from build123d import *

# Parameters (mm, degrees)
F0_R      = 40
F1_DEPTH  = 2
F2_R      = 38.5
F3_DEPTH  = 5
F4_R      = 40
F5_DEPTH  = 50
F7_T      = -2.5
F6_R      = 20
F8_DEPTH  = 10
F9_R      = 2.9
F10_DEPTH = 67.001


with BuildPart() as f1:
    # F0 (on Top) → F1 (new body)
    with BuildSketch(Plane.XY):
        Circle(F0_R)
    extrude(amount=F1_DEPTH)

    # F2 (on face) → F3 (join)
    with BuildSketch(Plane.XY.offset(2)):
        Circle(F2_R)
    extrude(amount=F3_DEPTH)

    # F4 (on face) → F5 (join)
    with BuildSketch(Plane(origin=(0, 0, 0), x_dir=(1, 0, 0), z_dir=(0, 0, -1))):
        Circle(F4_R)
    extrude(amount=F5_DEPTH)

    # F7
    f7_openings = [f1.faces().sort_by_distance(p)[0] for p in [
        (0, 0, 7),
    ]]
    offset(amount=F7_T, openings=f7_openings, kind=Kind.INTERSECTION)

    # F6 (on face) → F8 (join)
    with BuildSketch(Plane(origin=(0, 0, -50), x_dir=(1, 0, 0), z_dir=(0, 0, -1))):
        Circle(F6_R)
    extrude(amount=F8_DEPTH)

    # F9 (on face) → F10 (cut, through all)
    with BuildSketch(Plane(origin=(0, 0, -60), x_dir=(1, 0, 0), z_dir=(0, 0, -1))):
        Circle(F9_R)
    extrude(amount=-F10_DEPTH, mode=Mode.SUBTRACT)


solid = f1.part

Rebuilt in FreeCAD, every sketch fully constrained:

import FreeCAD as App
import Part
import Sketcher

V = App.Vector


def faces_at(feature, points):
    """Names of the faces that lie closest to the given points."""
    faces = feature.Shape.Faces
    near = lambda p: min(range(len(faces)), key=lambda i: faces[i].distToShape(Part.Vertex(*p))[0])
    return sorted({f"Face{near(p) + 1}" for p in points})

doc = App.newDocument("Part")
body = doc.addObject("PartDesign::Body", "Body")

# Sketch on XY plane
sketch1 = doc.addObject("Sketcher::SketchObject", "Sketch")
body.addObject(sketch1)
sketch1.AttachmentSupport = (doc.XY_Plane, [""])
sketch1.MapMode = "FlatFace"
sketch1.addGeometry(Part.Circle(V(0, 0, 0), V(0, 0, 1), 40), False)
sketch1.addConstraint([
    Sketcher.Constraint("Coincident", 0, 3, -1, 1),
    Sketcher.Constraint("Diameter", 0, 80.0),
])
pad1 = doc.addObject("PartDesign::Pad", "Pad")
body.addObject(pad1)
pad1.Profile = sketch1
pad1.Length = 2

# Sketch on XY plane
sketch2 = doc.addObject("Sketcher::SketchObject", "Sketch001")
body.addObject(sketch2)
sketch2.AttachmentSupport = (doc.XY_Plane, [""])
sketch2.MapMode = "FlatFace"
sketch2.AttachmentOffset = App.Placement(V(0, 0, 2), App.Rotation())
sketch2.addGeometry(Part.Circle(V(0, 0, 0), V(0, 0, 1), 38.5), False)
sketch2.addConstraint([
    Sketcher.Constraint("Coincident", 0, 3, -1, 1),
    Sketcher.Constraint("Diameter", 0, 77.0),
])
pad2 = doc.addObject("PartDesign::Pad", "Pad001")
body.addObject(pad2)
pad2.Profile = sketch2
pad2.Length = 5

# Sketch on XY plane
sketch3 = doc.addObject("Sketcher::SketchObject", "Sketch002")
body.addObject(sketch3)
sketch3.AttachmentSupport = (doc.XY_Plane, [""])
sketch3.MapMode = "FlatFace"
sketch3.addGeometry(Part.Circle(V(0, 0, 0), V(0, 0, 1), 40), False)
sketch3.addConstraint([
    Sketcher.Constraint("Coincident", 0, 3, -1, 1),
    Sketcher.Constraint("Diameter", 0, 80.0),
])
pad3 = doc.addObject("PartDesign::Pad", "Pad002")
body.addObject(pad3)
pad3.Profile = sketch3
pad3.Length = 50
pad3.Reversed = True
doc.recompute()

thickness = doc.addObject("PartDesign::Thickness", "Thickness")
body.addObject(thickness)
thickness.Base = (pad3, faces_at(pad3, [(0, 0, 7)]))
thickness.Value = 2.5
thickness.Reversed = True
thickness.Join = "Intersection"

# Sketch on XY plane
sketch4 = doc.addObject("Sketcher::SketchObject", "Sketch003")
body.addObject(sketch4)
sketch4.AttachmentSupport = (doc.XY_Plane, [""])
sketch4.MapMode = "FlatFace"
sketch4.AttachmentOffset = App.Placement(V(0, 0, -50), App.Rotation())
sketch4.addGeometry(Part.Circle(V(0, 0, 0), V(0, 0, 1), 20), False)
sketch4.addConstraint([
    Sketcher.Constraint("Coincident", 0, 3, -1, 1),
    Sketcher.Constraint("Diameter", 0, 40.0),
])
pad4 = doc.addObject("PartDesign::Pad", "Pad003")
body.addObject(pad4)
pad4.Profile = sketch4
pad4.Length = 10
pad4.Reversed = True

# Sketch on XY plane
sketch5 = doc.addObject("Sketcher::SketchObject", "Sketch004")
body.addObject(sketch5)
sketch5.AttachmentSupport = (doc.XY_Plane, [""])
sketch5.MapMode = "FlatFace"
sketch5.AttachmentOffset = App.Placement(V(0, 0, -60), App.Rotation())
sketch5.addGeometry(Part.Circle(V(0, 0, 0), V(0, 0, 1), 2.9), False)
sketch5.addConstraint([
    Sketcher.Constraint("Coincident", 0, 3, -1, 1),
    Sketcher.Constraint("Diameter", 0, 5.8),
])
pocket1 = doc.addObject("PartDesign::Pocket", "Pocket")
body.addObject(pocket1)
pocket1.Profile = sketch5
pocket1.Type = "ThroughAll"
pocket1.Reversed = True

doc.recompute()
